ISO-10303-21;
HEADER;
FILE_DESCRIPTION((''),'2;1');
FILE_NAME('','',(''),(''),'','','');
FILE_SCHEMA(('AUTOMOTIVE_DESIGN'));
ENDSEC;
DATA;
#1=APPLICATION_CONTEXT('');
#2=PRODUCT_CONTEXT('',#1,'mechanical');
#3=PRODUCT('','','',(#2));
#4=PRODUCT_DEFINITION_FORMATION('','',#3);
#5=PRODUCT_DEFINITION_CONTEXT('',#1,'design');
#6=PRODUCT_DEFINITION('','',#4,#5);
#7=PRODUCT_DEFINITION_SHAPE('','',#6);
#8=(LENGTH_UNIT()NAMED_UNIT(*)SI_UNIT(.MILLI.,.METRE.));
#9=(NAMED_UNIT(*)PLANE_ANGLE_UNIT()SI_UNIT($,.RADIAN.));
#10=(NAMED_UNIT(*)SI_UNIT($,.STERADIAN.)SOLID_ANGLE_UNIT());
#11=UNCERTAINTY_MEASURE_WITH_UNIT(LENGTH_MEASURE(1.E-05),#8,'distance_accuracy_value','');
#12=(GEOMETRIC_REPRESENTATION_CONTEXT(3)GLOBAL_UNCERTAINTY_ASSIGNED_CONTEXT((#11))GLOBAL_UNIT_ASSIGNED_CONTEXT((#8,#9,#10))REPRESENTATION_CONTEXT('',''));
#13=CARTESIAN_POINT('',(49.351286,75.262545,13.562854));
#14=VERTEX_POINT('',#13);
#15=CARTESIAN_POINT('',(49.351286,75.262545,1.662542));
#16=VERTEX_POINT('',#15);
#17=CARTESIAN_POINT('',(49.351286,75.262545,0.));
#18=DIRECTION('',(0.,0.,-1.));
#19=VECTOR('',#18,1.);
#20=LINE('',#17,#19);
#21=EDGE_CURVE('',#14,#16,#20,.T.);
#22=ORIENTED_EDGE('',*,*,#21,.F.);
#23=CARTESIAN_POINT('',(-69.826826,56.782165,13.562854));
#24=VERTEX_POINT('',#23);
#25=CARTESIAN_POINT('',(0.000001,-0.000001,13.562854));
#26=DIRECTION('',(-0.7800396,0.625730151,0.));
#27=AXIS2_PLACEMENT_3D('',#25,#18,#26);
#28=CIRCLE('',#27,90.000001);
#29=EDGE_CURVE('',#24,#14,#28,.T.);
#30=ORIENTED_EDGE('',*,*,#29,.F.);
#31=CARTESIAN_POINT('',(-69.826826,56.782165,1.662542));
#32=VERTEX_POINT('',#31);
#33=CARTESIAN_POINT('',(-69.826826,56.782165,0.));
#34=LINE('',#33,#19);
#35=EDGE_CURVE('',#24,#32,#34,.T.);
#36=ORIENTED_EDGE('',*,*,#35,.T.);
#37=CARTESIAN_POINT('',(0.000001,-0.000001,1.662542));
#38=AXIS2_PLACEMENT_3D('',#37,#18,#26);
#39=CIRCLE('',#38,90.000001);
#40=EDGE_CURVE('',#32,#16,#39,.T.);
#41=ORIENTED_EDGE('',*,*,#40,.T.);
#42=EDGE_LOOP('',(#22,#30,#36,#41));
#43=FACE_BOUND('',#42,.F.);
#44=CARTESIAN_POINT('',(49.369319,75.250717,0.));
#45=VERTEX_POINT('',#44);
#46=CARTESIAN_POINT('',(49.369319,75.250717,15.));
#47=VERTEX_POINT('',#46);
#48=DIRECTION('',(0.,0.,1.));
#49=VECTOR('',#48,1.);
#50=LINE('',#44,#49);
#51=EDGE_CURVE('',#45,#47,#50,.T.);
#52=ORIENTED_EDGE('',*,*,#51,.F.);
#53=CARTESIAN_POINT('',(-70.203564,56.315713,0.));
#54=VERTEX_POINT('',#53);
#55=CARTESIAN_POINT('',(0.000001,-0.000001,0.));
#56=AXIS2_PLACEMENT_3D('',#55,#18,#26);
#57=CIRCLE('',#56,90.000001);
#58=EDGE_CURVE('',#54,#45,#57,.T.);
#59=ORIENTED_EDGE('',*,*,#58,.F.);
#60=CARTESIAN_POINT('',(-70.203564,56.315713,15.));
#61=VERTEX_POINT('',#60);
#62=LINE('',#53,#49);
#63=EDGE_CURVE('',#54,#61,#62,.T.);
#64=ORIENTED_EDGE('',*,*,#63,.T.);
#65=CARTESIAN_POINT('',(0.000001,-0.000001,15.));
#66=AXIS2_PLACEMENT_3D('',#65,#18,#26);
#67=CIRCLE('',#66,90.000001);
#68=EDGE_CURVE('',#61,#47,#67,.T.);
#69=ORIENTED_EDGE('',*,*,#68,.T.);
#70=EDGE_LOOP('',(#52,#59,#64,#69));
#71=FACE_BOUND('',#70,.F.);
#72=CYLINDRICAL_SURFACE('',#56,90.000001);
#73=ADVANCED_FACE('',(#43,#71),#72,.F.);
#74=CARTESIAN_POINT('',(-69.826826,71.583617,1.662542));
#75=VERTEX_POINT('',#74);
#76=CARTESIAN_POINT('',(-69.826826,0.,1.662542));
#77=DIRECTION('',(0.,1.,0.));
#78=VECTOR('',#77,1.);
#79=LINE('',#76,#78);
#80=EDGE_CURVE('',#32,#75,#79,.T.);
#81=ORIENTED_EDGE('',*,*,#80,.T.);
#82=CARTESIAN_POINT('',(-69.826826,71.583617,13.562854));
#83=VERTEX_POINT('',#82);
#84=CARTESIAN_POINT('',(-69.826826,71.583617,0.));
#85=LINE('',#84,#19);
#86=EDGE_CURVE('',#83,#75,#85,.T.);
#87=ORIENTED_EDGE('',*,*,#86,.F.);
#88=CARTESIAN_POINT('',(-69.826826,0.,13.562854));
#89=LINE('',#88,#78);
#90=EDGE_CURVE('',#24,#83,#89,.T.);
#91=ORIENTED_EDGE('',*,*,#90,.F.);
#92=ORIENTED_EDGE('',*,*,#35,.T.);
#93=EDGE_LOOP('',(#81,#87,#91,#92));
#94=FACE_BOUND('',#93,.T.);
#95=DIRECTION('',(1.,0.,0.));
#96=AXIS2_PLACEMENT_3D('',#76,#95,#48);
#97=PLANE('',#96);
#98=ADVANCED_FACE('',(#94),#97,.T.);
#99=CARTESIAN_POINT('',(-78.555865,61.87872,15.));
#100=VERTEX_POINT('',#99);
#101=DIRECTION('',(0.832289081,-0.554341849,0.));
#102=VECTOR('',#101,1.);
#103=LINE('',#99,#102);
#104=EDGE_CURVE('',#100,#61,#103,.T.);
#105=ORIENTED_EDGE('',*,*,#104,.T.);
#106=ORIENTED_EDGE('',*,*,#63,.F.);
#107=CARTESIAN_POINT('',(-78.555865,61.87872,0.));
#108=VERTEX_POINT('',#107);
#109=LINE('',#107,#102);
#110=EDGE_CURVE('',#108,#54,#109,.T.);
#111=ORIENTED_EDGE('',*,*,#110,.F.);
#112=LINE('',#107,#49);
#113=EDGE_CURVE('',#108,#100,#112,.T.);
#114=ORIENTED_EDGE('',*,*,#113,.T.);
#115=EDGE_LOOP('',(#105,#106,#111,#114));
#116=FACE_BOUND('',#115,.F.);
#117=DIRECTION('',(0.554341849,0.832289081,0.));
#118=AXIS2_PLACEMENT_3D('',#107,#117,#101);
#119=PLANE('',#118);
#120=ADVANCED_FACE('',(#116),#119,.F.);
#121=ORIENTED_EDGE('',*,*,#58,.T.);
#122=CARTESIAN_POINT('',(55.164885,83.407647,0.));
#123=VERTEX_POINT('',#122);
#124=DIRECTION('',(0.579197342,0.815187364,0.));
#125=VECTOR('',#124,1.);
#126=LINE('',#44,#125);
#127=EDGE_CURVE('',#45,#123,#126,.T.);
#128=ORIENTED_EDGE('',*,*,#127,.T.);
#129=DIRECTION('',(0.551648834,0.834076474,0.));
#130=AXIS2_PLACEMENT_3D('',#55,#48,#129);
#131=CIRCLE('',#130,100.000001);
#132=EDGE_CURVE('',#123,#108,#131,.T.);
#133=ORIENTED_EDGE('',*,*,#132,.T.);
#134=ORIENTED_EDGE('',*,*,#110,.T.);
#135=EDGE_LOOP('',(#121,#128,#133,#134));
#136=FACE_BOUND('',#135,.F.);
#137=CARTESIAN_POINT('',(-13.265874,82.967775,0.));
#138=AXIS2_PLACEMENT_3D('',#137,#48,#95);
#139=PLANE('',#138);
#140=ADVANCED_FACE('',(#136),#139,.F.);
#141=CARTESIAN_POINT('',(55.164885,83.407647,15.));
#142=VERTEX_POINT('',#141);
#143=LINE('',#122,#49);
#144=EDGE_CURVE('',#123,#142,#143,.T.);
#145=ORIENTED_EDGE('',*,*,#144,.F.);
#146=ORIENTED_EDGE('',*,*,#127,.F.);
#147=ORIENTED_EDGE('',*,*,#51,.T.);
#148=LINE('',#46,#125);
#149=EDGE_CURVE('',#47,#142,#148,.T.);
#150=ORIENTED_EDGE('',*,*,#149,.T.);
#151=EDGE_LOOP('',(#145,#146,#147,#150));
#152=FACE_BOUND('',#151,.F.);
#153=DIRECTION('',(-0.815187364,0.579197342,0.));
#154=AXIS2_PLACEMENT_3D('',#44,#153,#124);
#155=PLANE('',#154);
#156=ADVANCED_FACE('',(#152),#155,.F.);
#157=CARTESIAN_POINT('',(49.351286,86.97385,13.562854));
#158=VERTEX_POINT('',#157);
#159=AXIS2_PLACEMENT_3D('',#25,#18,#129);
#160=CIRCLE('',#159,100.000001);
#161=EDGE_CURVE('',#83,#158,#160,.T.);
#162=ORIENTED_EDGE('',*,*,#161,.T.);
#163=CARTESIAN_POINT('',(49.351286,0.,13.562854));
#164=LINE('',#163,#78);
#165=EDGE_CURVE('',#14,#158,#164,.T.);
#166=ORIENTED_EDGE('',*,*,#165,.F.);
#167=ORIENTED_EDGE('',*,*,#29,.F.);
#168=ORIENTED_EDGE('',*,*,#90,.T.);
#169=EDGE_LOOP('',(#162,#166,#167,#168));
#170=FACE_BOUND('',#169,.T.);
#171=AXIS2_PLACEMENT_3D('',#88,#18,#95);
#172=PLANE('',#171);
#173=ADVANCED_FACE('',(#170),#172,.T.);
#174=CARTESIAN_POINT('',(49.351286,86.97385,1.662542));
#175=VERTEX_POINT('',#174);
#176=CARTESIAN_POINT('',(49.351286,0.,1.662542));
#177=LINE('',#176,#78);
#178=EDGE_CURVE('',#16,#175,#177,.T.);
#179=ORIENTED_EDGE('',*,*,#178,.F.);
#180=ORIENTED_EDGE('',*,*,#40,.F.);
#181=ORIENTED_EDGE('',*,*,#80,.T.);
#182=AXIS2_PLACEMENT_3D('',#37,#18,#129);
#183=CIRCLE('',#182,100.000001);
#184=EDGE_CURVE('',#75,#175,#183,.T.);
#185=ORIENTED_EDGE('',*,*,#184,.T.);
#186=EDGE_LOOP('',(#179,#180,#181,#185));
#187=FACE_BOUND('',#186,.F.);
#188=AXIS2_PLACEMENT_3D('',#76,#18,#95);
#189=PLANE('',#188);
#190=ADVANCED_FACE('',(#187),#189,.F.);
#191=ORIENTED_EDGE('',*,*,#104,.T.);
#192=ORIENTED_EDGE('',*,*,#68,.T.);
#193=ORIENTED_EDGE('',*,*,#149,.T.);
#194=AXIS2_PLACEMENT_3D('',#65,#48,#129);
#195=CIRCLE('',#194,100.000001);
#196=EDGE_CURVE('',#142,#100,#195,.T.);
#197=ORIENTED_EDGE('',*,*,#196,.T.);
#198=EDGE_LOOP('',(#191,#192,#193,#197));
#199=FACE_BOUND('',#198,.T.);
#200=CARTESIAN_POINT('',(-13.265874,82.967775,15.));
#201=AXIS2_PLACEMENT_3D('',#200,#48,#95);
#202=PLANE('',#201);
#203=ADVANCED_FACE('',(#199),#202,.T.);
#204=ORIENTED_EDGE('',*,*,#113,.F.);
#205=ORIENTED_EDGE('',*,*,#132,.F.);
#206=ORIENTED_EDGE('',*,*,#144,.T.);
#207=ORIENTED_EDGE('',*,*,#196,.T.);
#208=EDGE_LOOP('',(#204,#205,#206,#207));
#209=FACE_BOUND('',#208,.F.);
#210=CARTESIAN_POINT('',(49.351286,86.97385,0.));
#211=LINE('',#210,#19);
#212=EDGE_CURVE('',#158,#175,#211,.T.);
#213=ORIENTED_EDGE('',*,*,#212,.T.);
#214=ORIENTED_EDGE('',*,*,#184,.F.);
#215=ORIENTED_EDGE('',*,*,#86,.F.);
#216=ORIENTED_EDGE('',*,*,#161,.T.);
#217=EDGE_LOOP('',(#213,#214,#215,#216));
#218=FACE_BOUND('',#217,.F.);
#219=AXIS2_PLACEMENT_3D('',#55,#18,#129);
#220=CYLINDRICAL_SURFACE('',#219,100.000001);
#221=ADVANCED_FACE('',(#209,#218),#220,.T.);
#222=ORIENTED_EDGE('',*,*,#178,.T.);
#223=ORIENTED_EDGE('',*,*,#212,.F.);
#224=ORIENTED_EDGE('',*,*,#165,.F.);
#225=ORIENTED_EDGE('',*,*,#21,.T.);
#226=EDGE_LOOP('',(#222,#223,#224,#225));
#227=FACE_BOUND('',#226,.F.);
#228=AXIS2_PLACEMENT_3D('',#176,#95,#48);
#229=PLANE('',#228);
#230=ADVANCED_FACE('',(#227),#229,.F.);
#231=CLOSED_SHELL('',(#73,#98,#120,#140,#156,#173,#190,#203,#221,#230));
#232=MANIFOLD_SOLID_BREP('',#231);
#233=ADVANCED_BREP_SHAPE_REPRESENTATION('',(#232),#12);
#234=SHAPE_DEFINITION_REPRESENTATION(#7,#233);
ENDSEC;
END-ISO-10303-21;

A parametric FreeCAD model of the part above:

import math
import FreeCAD as App
import Part
import Sketcher

V = App.Vector


def add_polygon(sketch, points):
    """Adds a closed chain of lines whose ends are joined by coincident constraints."""
    first, n = sketch.GeometryCount, len(points)
    for a, b in zip(points, points[1:] + points[:1]):
        sketch.addGeometry(Part.LineSegment(App.Vector(*a, 0), App.Vector(*b, 0)), False)
    for i in range(n):
        sketch.addConstraint(Sketcher.Constraint("Coincident", first + i, 2, first + (i + 1) % n, 1))

doc = App.newDocument("Part")
body = doc.addObject("PartDesign::Body", "Body")

# Sketch on XY plane
sketch1 = doc.addObject("Sketcher::SketchObject", "Sketch")
body.addObject(sketch1)
sketch1.AttachmentSupport = (doc.XY_Plane, [""])
sketch1.MapMode = "FlatFace"
sketch1.addGeometry(Part.ArcOfCircle(Part.Circle(V(0, 0, 0), V(0, 0, 1), 90), math.radians(57), math.radians(141)), False)
sketch1.addGeometry(Part.LineSegment(V(49, 75, 0), V(55, 83, 0)), False)
sketch1.addGeometry(Part.ArcOfCircle(Part.Circle(V(0, 0, 0), V(0, 0, 1), 100), math.radians(57), math.radians(142)), False)
sketch1.addGeometry(Part.LineSegment(V(-79, 62, 0), V(-70, 56, 0)), False)
sketch1.addConstraint(Sketcher.Constraint("Coincident", 0, 1, 1, 1))
sketch1.addConstraint(Sketcher.Constraint("Coincident", 1, 2, 2, 1))
sketch1.addConstraint(Sketcher.Constraint("Coincident", 2, 2, 3, 1))
sketch1.addConstraint(Sketcher.Constraint("Coincident", 3, 2, 0, 2))
sketch1.addConstraint(Sketcher.Constraint("Coincident", 0, 3, -1, 1))
sketch1.addConstraint(Sketcher.Constraint("Coincident", 2, 3, -1, 1))
sketch1.addConstraint(Sketcher.Constraint("Radius", 0, 90.000001))
sketch1.addConstraint(Sketcher.Constraint("Radius", 2, 100.000001))
sketch1.addConstraint(Sketcher.Constraint("DistanceX", 2, 2, 3, 2, 8.352301))
sketch1.addConstraint(Sketcher.Constraint("DistanceX", -1, 1, 0, 1, 49.369319))
sketch1.addConstraint(Sketcher.Constraint("DistanceY", -1, 1, 2, 2, 61.87872))
sketch1.addConstraint(Sketcher.Constraint("DistanceY", 0, 1, 1, 2, 8.15693))
pad1 = doc.addObject("PartDesign::Pad", "Pad")
body.addObject(pad1)
pad1.Profile = sketch1
pad1.Length = 15

# Sketch on XZ plane
sketch2 = doc.addObject("Sketcher::SketchObject", "Sketch001")
body.addObject(sketch2)
sketch2.AttachmentSupport = (doc.XZ_Plane, [""])
sketch2.MapMode = "FlatFace"
add_polygon(sketch2, [(-70, 14), (-70, 2), (49, 2), (49, 14)])  # lines 0-3
sketch2.addConstraint(Sketcher.Constraint("Vertical", 0))
sketch2.addConstraint(Sketcher.Constraint("Horizontal", 1))
sketch2.addConstraint(Sketcher.Constraint("Vertical", 2))
sketch2.addConstraint(Sketcher.Constraint("Horizontal", 3))
sketch2.addConstraint(Sketcher.Constraint("DistanceX", 1, 1, 1, 2, 119.178112))
sketch2.addConstraint(Sketcher.Constraint("DistanceY", 0, 2, 0, 1, 11.900312))
sketch2.addConstraint(Sketcher.Constraint("DistanceX", 0, 2, -1, 1, 69.826826))
sketch2.addConstraint(Sketcher.Constraint("DistanceY", -1, 1, 0, 2, 1.662542))
pocket1 = doc.addObject("PartDesign::Pocket", "Pocket")
body.addObject(pocket1)
pocket1.Profile = sketch2
pocket1.Type = "ThroughAll"

doc.recompute()
